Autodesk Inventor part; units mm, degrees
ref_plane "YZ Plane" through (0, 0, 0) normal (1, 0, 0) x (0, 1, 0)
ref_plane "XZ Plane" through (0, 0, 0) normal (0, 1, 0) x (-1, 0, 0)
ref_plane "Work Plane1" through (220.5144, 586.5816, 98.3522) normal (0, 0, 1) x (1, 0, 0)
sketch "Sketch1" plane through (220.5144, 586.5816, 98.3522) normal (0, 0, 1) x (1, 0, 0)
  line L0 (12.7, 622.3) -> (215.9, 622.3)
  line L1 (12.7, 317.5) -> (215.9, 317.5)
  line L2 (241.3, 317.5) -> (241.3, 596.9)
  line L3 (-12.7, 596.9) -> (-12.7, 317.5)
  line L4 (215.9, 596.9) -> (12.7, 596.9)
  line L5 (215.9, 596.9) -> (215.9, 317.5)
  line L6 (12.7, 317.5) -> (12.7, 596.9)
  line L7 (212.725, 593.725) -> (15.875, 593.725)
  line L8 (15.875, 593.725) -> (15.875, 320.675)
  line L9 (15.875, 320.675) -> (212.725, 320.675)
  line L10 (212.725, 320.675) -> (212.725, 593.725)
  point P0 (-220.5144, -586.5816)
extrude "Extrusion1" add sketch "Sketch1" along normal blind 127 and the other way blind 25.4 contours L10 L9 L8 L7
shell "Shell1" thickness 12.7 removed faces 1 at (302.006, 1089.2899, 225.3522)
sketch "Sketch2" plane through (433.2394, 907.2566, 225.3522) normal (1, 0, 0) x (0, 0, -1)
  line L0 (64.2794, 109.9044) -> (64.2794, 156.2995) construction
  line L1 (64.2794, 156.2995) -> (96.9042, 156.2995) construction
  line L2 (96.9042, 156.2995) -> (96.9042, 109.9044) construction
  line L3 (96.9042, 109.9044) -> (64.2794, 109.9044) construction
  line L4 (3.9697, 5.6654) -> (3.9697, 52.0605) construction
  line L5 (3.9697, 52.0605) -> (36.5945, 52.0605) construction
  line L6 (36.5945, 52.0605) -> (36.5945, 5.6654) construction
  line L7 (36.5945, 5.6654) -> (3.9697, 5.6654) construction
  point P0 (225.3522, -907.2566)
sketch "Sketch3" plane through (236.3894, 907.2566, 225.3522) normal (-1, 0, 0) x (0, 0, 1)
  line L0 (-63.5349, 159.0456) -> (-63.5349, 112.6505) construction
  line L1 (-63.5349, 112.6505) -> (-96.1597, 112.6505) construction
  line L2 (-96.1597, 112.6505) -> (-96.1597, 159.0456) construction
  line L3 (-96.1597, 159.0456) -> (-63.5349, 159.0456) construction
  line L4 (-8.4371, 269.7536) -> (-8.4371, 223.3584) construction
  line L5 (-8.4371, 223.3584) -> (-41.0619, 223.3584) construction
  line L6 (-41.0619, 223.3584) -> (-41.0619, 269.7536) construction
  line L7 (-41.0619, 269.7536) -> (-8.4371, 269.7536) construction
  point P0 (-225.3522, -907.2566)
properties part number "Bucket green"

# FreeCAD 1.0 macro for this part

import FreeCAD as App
import Part
import Sketcher

V = App.Vector
Q = App.Units.Quantity


def faces_at(feature, points):
    """Names of the faces that lie closest to the given points."""
    faces = feature.Shape.Faces
    near = lambda p: min(range(len(faces)), key=lambda i: faces[i].distToShape(Part.Vertex(*p))[0])
    return sorted({f"Face{near(p) + 1}" for p in points})


def add_polygon(sketch, points):
    """Adds a closed chain of lines whose ends are joined by coincident constraints."""
    first, n = sketch.GeometryCount, len(points)
    for a, b in zip(points, points[1:] + points[:1]):
        sketch.addGeometry(Part.LineSegment(App.Vector(*a, 0), App.Vector(*b, 0)), False)
    for i in range(n):
        sketch.addConstraint(Sketcher.Constraint("Coincident", first + i, 2, first + (i + 1) % n, 1))

doc = App.newDocument("Part")
body = doc.addObject("PartDesign::Body", "Body")

# Sketch on XY plane
sketch1 = doc.addObject("Sketcher::SketchObject", "Sketch")
body.addObject(sketch1)
sketch1.AttachmentSupport = (doc.XY_Plane, [""])
sketch1.MapMode = "FlatFace"
sketch1.AttachmentOffset = App.Placement(V(0, 0, 98.3522), App.Rotation())
add_polygon(sketch1, [(433, 907), (433, 1180), (236, 1180), (236, 907)])  # lines 0-3
sketch1.addConstraint(Sketcher.Constraint("Vertical", 0))
sketch1.addConstraint(Sketcher.Constraint("Horizontal", 1))
sketch1.addConstraint(Sketcher.Constraint("Vertical", 2))
sketch1.addConstraint(Sketcher.Constraint("Horizontal", 3))
sketch1.addConstraint(Sketcher.Constraint("DistanceX", 1, 2, 1, 1, Q("7.75 in")))
sketch1.addConstraint(Sketcher.Constraint("DistanceY", 0, 1, 0, 2, Q("10.75 in")))
sketch1.addConstraint(Sketcher.Constraint("DistanceX", -1, 1, 0, 2, 433.2394))
sketch1.addConstraint(Sketcher.Constraint("DistanceY", -1, 1, 0, 2, 1180.3066))
pad1 = doc.addObject("PartDesign::Pad", "Pad")
body.addObject(pad1)
pad1.Profile = sketch1
pad1.Type = "TwoLengths"
pad1.Length = Q("5 in")
pad1.Length2 = Q("1 in")
doc.recompute()

thickness = doc.addObject("PartDesign::Thickness", "Thickness")
body.addObject(thickness)
thickness.Base = (pad1, faces_at(pad1, [(302.006, 1089.29, 225.352)]))
thickness.Value = Q("0.5 in")
thickness.Reversed = True
thickness.Join = "Intersection"

doc.recompute()
